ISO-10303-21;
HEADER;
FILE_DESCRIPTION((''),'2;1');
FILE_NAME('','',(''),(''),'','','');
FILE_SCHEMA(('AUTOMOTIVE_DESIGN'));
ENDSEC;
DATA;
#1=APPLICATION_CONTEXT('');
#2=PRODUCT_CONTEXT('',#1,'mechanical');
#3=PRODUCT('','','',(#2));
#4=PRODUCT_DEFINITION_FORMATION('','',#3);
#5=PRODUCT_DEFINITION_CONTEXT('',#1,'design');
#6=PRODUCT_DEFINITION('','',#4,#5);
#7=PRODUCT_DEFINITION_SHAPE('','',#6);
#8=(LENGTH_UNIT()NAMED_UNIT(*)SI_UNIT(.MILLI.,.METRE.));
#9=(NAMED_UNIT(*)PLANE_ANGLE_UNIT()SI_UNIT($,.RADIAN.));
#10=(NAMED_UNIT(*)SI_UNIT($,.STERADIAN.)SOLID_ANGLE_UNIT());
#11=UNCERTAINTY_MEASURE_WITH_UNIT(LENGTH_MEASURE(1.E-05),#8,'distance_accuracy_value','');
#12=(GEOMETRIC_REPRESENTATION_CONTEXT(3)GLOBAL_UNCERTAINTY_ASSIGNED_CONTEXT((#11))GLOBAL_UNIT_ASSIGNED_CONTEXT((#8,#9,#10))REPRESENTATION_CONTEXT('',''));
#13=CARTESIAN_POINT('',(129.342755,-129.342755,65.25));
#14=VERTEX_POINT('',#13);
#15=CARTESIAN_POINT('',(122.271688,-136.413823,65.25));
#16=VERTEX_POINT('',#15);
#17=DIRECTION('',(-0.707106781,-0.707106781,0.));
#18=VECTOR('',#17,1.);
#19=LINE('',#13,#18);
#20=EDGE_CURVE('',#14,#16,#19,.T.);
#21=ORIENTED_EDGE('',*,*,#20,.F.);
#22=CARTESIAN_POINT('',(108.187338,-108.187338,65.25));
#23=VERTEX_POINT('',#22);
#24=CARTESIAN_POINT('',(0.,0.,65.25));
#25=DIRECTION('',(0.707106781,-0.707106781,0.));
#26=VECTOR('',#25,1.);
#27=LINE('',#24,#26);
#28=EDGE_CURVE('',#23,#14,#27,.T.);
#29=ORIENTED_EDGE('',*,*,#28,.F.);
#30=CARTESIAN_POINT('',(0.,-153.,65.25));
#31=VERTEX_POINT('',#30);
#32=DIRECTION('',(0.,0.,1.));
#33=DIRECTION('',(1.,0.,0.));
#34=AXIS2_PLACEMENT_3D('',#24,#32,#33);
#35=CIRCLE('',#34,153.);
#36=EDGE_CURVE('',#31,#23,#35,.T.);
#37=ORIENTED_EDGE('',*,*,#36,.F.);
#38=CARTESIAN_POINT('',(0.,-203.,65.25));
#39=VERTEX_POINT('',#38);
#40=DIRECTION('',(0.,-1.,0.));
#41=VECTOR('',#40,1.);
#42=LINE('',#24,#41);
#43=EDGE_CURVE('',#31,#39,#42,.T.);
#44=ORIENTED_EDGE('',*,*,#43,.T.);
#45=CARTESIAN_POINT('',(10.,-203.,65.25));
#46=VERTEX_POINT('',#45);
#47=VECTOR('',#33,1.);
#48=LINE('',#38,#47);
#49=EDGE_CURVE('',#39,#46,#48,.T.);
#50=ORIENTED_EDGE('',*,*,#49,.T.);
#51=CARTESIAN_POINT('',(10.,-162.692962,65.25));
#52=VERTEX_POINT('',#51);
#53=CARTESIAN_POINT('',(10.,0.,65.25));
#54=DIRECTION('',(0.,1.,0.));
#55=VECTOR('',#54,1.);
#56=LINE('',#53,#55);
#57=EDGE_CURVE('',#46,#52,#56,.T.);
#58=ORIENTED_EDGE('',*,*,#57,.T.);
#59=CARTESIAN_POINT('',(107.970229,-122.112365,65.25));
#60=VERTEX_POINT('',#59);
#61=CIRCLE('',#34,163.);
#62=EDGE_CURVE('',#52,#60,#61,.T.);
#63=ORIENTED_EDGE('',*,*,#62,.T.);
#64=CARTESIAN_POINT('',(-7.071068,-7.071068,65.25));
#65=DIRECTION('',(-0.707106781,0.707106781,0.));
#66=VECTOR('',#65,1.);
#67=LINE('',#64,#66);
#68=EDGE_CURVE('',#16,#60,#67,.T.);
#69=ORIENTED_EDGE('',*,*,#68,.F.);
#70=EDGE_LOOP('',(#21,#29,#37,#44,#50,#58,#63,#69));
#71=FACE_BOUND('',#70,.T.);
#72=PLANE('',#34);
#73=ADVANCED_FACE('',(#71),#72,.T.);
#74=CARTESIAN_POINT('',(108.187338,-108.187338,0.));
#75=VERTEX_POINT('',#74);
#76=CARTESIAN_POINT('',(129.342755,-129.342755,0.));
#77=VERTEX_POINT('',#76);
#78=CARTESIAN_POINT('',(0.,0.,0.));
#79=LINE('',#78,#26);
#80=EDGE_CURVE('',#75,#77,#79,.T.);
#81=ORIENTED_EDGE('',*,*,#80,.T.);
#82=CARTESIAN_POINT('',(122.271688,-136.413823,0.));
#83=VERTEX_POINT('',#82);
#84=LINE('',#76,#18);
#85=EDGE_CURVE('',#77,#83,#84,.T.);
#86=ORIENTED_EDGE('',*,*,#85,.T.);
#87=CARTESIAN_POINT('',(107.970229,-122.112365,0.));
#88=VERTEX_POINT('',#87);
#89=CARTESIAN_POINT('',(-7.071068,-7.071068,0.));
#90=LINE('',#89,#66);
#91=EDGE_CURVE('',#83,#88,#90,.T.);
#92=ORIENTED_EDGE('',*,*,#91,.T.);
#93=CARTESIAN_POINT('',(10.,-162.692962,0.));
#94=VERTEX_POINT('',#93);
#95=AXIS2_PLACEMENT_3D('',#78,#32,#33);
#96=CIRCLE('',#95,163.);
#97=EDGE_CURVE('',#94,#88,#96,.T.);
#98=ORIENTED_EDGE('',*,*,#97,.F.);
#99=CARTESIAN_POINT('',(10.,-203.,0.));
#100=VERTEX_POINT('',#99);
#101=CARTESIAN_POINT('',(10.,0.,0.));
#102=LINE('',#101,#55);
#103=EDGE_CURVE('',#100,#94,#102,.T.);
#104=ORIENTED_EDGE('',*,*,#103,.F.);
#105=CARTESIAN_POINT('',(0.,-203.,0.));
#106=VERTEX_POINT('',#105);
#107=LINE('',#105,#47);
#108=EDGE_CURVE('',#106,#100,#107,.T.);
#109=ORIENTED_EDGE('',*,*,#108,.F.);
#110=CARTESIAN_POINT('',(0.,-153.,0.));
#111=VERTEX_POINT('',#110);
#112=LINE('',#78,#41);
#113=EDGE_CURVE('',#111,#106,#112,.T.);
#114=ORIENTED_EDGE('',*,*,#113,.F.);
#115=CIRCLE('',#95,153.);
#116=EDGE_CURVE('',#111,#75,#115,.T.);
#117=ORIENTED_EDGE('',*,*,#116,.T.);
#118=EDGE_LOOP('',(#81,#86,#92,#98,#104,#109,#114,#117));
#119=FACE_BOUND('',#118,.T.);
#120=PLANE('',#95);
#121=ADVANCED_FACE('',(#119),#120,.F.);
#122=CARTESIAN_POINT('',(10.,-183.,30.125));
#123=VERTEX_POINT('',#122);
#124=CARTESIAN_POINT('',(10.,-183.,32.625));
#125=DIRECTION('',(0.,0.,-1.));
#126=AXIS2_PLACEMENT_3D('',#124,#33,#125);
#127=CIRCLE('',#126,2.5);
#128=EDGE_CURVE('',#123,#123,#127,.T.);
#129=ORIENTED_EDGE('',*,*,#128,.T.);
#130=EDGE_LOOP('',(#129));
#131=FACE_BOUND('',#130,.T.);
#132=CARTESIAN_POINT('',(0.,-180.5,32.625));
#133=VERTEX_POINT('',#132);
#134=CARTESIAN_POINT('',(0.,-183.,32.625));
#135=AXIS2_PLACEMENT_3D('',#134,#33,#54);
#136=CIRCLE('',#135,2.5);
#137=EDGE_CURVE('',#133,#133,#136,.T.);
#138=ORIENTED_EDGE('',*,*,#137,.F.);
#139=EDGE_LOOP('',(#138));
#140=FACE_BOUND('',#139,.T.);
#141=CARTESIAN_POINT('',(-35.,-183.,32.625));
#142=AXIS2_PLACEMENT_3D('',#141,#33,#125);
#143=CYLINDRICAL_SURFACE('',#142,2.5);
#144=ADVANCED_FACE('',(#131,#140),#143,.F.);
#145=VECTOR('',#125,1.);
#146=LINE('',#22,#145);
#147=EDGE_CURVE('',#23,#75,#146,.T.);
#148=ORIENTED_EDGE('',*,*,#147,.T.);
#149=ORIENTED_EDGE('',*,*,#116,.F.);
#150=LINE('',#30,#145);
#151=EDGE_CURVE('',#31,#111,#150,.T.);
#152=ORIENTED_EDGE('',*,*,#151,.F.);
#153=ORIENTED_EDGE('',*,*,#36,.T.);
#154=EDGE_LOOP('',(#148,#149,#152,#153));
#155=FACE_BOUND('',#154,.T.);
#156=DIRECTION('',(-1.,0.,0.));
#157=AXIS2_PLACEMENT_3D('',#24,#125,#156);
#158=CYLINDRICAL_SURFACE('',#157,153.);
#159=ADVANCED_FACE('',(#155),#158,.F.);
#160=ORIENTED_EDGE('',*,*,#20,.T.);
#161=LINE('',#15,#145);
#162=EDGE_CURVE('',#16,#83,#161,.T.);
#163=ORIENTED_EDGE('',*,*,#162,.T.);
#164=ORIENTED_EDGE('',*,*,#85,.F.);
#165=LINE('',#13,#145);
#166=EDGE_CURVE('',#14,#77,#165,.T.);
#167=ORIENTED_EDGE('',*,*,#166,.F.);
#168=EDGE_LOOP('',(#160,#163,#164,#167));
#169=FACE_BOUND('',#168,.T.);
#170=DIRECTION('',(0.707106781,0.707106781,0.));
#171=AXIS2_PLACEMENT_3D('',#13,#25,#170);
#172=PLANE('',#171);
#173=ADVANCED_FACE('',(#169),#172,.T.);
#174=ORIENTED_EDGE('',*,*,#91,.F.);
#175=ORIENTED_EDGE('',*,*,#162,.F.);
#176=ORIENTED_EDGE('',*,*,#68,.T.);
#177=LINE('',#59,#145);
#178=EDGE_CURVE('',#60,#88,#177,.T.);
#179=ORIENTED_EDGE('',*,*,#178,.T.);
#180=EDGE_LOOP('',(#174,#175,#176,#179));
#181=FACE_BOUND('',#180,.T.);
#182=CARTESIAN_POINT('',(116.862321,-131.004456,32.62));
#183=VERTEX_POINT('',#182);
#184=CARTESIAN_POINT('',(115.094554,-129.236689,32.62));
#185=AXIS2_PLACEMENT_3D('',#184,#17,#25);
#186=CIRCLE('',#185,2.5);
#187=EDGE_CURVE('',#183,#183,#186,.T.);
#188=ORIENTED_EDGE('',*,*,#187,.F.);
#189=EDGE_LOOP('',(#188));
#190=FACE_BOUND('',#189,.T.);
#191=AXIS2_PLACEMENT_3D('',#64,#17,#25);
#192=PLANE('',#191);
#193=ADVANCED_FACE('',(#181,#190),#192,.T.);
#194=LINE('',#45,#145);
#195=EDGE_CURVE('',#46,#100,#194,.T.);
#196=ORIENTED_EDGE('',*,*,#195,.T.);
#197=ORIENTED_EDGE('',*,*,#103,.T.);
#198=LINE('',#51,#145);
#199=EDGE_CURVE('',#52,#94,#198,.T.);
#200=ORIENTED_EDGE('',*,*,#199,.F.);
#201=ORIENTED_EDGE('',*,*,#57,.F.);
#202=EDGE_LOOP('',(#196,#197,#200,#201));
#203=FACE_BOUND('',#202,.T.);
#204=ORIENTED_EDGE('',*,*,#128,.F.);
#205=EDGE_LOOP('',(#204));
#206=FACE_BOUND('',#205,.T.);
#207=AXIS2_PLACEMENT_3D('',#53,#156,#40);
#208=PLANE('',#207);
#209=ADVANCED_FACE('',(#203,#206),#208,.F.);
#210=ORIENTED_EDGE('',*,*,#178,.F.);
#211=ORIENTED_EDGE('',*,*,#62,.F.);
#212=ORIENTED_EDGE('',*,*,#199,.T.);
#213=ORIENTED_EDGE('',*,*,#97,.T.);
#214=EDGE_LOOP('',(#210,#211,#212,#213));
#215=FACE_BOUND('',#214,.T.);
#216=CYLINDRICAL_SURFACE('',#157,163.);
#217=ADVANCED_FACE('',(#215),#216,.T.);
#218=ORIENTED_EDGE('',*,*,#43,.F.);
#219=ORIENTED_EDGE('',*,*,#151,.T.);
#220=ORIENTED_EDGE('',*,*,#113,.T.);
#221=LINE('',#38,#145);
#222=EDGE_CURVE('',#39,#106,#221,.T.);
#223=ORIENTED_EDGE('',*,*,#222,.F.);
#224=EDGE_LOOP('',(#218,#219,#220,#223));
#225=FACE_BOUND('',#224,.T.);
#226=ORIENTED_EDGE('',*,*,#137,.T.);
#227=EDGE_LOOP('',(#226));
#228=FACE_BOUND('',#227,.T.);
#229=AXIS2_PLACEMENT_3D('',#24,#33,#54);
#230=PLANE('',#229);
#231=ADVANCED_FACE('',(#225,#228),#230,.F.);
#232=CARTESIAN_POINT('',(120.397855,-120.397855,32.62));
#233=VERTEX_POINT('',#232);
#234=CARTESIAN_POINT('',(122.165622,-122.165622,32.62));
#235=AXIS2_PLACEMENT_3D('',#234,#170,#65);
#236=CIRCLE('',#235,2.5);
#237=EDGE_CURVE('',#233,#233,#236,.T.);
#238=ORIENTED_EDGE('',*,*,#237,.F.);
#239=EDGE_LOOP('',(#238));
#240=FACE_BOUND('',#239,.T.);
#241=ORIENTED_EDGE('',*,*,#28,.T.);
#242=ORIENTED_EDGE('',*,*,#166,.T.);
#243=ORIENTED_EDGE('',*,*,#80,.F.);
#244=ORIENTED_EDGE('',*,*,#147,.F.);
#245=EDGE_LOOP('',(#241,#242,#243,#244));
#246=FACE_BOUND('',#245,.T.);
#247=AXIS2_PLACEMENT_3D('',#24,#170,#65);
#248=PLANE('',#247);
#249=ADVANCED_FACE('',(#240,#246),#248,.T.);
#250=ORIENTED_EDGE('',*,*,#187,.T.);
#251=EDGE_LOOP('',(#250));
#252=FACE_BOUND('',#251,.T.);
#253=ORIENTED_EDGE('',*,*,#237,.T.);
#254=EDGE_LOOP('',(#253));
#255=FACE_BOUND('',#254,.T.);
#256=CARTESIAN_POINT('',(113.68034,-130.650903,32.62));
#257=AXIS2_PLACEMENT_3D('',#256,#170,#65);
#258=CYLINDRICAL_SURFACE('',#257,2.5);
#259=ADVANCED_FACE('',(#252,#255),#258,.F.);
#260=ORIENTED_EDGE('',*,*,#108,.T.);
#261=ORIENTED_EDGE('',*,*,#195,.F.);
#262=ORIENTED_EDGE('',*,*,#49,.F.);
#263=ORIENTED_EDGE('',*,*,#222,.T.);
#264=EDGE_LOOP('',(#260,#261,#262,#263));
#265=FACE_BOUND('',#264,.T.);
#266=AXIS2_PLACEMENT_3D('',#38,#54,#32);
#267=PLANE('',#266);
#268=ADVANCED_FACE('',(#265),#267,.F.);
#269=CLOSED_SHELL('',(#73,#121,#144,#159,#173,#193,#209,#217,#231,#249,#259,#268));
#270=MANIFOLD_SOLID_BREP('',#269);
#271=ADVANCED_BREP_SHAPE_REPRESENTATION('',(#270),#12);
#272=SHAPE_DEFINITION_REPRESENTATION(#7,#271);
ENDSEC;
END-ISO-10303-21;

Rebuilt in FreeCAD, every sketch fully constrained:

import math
import FreeCAD as App
import Part
import Sketcher
Q = App.Units.Quantity

doc = App.newDocument("Part")
body = doc.addObject("PartDesign::Body", "Body")

# Sketch on XY plane
sketch1 = doc.addObject("Sketcher::SketchObject", "Sketch")
body.addObject(sketch1)
sketch1.AttachmentSupport = (doc.XY_Plane, [""])
sketch1.MapMode = "FlatFace"
sketch1.addGeometry([
    Part.LineSegment(App.Vector(129, -129, 0), App.Vector(108, -108, 0)),  # 0
    Part.ArcOfCircle(Part.Circle(App.Vector(0, 0, 0), App.Vector(0, 0, 1), 153), math.radians(-90), math.radians(-45)),  # 1
    Part.LineSegment(App.Vector(0, -153, 0), App.Vector(0, -203, 0)),  # 2
    Part.LineSegment(App.Vector(0, -203, 0), App.Vector(10, -203, 0)),  # 3
    Part.LineSegment(App.Vector(10, -203, 0), App.Vector(10, -163, 0)),  # 4
    Part.ArcOfCircle(Part.Circle(App.Vector(0, 0, 0), App.Vector(0, 0, 1), 163), math.radians(-86), math.radians(-49)),  # 5
    Part.LineSegment(App.Vector(108, -122, 0), App.Vector(122, -136, 0)),  # 6
    Part.LineSegment(App.Vector(122, -136, 0), App.Vector(129, -129, 0)),  # 7
], False)
sketch1.addConstraint([
    Sketcher.Constraint("Coincident", 0, 2, 1, 2),
    Sketcher.Constraint("Coincident", 1, 1, 2, 1),
    Sketcher.Constraint("Coincident", 2, 2, 3, 1),
    Sketcher.Constraint("Coincident", 3, 2, 4, 1),
    Sketcher.Constraint("Coincident", 4, 2, 5, 1),
    Sketcher.Constraint("Coincident", 5, 2, 6, 1),
    Sketcher.Constraint("Coincident", 6, 2, 7, 1),
    Sketcher.Constraint("Coincident", 7, 2, 0, 1),
    Sketcher.Constraint("Vertical", 2),
    Sketcher.Constraint("Horizontal", 3),
    Sketcher.Constraint("Vertical", 4),
    Sketcher.Constraint("Coincident", 1, 3, -1, 1),
    Sketcher.Constraint("Coincident", 5, 3, -1, 1),
    Sketcher.Constraint("PointOnObject", 1, 1, -2),
    Sketcher.Constraint("Parallel", 0, 6),
    Sketcher.Constraint("Perpendicular", 6, 7),
    Sketcher.Constraint("Radius", 1, Q("153 mm")),
    Sketcher.Constraint("Radius", 5, Q("163 mm")),
    Sketcher.Constraint("DistanceX", 3, 1, 3, 2, Q("10 mm")),
    Sketcher.Constraint("DistanceY", 2, 2, 2, 1, Q("50 mm")),
    Sketcher.Constraint("Angle", 0, Q("135 deg")),
    Sketcher.Constraint("Distance", 7, Q("10 mm")),
    Sketcher.Constraint("Distance", 0, Q("29.918279 mm")),
    Sketcher.Constraint("DistanceX", -1, 1, 5, 2, Q("107.970229 mm")),
])
pad1 = doc.addObject("PartDesign::Pad", "Pad")
body.addObject(pad1)
pad1.Profile = sketch1
pad1.Length = 65.25

# Sketch on YZ plane
sketch2 = doc.addObject("Sketcher::SketchObject", "Sketch001")
body.addObject(sketch2)
sketch2.AttachmentSupport = (doc.YZ_Plane, [""])
sketch2.MapMode = "FlatFace"
sketch2.AttachmentOffset = App.Placement(App.Vector(0, 0, 10), App.Rotation())
sketch2.addGeometry(Part.Circle(App.Vector(-183, 32.6, 0), App.Vector(0, 0, 1), 2.5), False)
sketch2.addConstraint([
    Sketcher.Constraint("Diameter", 0, Q("5 mm")),
    Sketcher.Constraint("DistanceX", 0, 3, -1, 1, Q("183 mm")),
    Sketcher.Constraint("DistanceY", -1, 1, 0, 3, Q("32.625 mm")),
])
pocket1 = doc.addObject("PartDesign::Pocket", "Pocket")
body.addObject(pocket1)
pocket1.Profile = sketch2
pocket1.Length = 45

# Sketch on an angled plane
sketch3 = doc.addObject("Sketcher::SketchObject", "Sketch002")
body.addObject(sketch3)
sketch3.Placement = App.Placement(App.Vector(0, 0, 0), App.Rotation(App.Vector(0, 0, -1), App.Vector(-0.707106781, 0.707106781, 0), App.Vector(0.707106781, 0.707106781, 0), "ZXY"))
sketch3.addGeometry(Part.Circle(App.Vector(-32.6, -172.8, 0), App.Vector(0, 0, 1), 2.5), False)
sketch3.addConstraint([
    Sketcher.Constraint("Diameter", 0, Q("5 mm")),
    Sketcher.Constraint("DistanceX", 0, 3, -1, 1, Q("32.62 mm")),
    Sketcher.Constraint("DistanceY", 0, 3, -1, 1, Q("172.768279 mm")),
])
pocket2 = doc.addObject("PartDesign::Pocket", "Pocket001")
body.addObject(pocket2)
pocket2.Profile = sketch3
pocket2.Length = 12

doc.recompute()
